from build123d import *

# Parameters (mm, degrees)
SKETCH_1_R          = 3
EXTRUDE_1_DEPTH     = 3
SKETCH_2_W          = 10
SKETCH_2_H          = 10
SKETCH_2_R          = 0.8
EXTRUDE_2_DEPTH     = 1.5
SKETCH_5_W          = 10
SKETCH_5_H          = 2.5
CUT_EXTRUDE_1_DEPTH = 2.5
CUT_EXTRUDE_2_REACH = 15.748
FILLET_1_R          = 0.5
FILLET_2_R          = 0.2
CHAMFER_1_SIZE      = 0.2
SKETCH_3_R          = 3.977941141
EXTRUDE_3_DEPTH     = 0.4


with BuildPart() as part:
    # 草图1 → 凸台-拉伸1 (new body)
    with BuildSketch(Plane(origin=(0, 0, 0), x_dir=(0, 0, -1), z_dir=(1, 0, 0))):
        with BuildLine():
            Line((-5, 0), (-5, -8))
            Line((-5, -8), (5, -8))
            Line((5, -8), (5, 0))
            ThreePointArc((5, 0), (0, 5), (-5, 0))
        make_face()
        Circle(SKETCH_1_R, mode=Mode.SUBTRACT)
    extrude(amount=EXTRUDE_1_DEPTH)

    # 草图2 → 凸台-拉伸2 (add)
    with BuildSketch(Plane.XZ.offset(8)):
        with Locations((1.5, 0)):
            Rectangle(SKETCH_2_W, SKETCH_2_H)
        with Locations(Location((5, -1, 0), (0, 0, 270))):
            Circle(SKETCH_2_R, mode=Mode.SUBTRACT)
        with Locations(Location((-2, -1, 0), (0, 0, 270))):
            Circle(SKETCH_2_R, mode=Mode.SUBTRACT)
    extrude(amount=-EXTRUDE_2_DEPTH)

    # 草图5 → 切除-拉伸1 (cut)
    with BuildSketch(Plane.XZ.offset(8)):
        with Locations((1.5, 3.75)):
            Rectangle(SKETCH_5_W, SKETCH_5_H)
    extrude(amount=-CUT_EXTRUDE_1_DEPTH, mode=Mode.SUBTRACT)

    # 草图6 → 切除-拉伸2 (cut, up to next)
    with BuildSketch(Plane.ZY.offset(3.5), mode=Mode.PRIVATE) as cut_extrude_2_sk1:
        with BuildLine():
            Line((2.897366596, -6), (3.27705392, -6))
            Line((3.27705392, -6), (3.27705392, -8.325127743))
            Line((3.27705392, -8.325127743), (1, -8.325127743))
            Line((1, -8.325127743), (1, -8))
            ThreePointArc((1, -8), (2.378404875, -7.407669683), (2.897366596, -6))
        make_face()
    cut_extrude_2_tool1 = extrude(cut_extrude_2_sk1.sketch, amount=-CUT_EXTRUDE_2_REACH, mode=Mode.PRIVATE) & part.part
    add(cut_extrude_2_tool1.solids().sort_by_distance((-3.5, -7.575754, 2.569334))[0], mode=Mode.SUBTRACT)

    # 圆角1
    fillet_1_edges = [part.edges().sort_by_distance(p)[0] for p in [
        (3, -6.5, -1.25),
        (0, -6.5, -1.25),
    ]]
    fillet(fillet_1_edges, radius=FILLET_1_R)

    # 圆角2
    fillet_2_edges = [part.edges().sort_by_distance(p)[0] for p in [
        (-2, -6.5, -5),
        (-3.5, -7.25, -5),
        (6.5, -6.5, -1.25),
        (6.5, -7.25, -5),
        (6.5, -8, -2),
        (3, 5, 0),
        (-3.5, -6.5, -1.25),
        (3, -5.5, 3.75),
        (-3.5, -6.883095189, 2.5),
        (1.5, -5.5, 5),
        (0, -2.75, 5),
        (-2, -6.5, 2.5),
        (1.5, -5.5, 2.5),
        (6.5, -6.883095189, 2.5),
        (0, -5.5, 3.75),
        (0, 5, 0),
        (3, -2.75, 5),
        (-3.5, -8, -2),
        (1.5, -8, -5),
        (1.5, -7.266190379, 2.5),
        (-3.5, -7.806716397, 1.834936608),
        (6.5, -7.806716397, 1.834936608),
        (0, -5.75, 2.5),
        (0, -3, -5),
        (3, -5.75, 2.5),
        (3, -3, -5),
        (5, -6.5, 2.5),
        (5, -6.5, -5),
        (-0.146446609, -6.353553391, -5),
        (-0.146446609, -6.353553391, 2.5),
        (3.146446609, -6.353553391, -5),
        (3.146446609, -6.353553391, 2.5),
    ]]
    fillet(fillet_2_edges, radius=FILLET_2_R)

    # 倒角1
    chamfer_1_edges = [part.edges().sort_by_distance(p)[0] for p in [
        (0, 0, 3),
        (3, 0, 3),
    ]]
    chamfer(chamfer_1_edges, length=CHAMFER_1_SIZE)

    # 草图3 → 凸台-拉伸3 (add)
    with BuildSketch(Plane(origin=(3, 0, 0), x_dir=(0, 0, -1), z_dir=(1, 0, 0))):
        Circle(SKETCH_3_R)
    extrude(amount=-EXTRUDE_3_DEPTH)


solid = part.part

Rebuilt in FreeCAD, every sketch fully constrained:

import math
import FreeCAD as App
import Part
import Sketcher


def edges_at(feature, points):
    """Names of the edges that pass closest to the given points."""
    edges = feature.Shape.Edges
    near = lambda p: min(range(len(edges)), key=lambda i: edges[i].distToShape(Part.Vertex(*p))[0])
    return sorted({f"Edge{near(p) + 1}" for p in points})


def add_polygon(sketch, points):
    """Adds a closed chain of lines whose ends are joined by coincident constraints."""
    first, n = sketch.GeometryCount, len(points)
    for a, b in zip(points, points[1:] + points[:1]):
        sketch.addGeometry(Part.LineSegment(App.Vector(*a, 0), App.Vector(*b, 0)), False)
    for i in range(n):
        sketch.addConstraint(Sketcher.Constraint("Coincident", first + i, 2, first + (i + 1) % n, 1))

doc = App.newDocument("Part")
body = doc.addObject("PartDesign::Body", "Body")

sketch1 = body.newObject("Sketcher::SketchObject", "Sketch")
sketch1.AttachmentSupport = (doc.getObject("YZ_Plane"), [""])
sketch1.MapMode = "FlatFace"
sketch1.addGeometry(Part.LineSegment(App.Vector(0, 5, 0), App.Vector(-8, 5, 0)), False)
sketch1.addGeometry(Part.LineSegment(App.Vector(-8, 5, 0), App.Vector(-8, -5, 0)), False)
sketch1.addGeometry(Part.LineSegment(App.Vector(-8, -5, 0), App.Vector(0, -5, 0)), False)
sketch1.addGeometry(Part.ArcOfCircle(Part.Circle(App.Vector(0, 0, 0), App.Vector(0, 0, 1), 5), math.radians(-90), math.radians(90)), False)
sketch1.addGeometry(Part.Circle(App.Vector(0, 0, 0), App.Vector(0, 0, 1), 3), False)
sketch1.addConstraint(Sketcher.Constraint("Coincident", 0, 2, 1, 1))
sketch1.addConstraint(Sketcher.Constraint("Coincident", 1, 2, 2, 1))
sketch1.addConstraint(Sketcher.Constraint("Tangent", 2, 2, 3, 1))
sketch1.addConstraint(Sketcher.Constraint("Tangent", 3, 2, 0, 1))
sketch1.addConstraint(Sketcher.Constraint("Horizontal", 0))
sketch1.addConstraint(Sketcher.Constraint("Vertical", 1))
sketch1.addConstraint(Sketcher.Constraint("Horizontal", 2))
sketch1.addConstraint(Sketcher.Constraint("Coincident", 3, 3, -1, 1))
sketch1.addConstraint(Sketcher.Constraint("Coincident", 4, 3, -1, 1))
sketch1.addConstraint(Sketcher.Constraint("Diameter", 4, 6.0))
sketch1.addConstraint(Sketcher.Constraint("Radius", 3, 5.0))
sketch1.addConstraint(Sketcher.Constraint("DistanceX", 0, 2, 0, 1, 8.0))
pad1 = body.newObject("PartDesign::Pad", "Pad")
pad1.Profile = sketch1
pad1.Length = 3

sketch2 = body.newObject("Sketcher::SketchObject", "Sketch001")
sketch2.AttachmentSupport = (doc.getObject("XZ_Plane"), [""])
sketch2.MapMode = "FlatFace"
sketch2.AttachmentOffset = App.Placement(App.Vector(0, 0, 8), App.Rotation())
add_polygon(sketch2, [(-3.5, 5), (-3.5, -5), (6.5, -5), (6.5, 5)])
sketch2.addGeometry(Part.Circle(App.Vector(-2, -1, 0), App.Vector(0, 0, 1), 0.8), False)
sketch2.addGeometry(Part.Circle(App.Vector(5, -1, 0), App.Vector(0, 0, 1), 0.8), False)
sketch2.addConstraint(Sketcher.Constraint("Vertical", 0))
sketch2.addConstraint(Sketcher.Constraint("Horizontal", 1))
sketch2.addConstraint(Sketcher.Constraint("Vertical", 2))
sketch2.addConstraint(Sketcher.Constraint("Horizontal", 3))
sketch2.addConstraint(Sketcher.Constraint("Equal", 4, 5))
sketch2.addConstraint(Sketcher.Constraint("Horizontal", 4, 3, 5, 3))
sketch2.addConstraint(Sketcher.Constraint("Equal", 3, 0))
sketch2.addConstraint(Sketcher.Constraint("Diameter", 4, 1.6))
sketch2.addConstraint(Sketcher.Constraint("DistanceX", 1, 1, 1, 2, 10.0))
sketch2.addConstraint(Sketcher.Constraint("DistanceX", 4, 3, -1, 1, 2.0))
sketch2.addConstraint(Sketcher.Constraint("DistanceY", 4, 3, -1, 1, 1.0))
sketch2.addConstraint(Sketcher.Constraint("DistanceX", -1, 1, 5, 3, 5.0))
sketch2.addConstraint(Sketcher.Constraint("DistanceY", 0, 2, -1, 1, 5.0))
sketch2.addConstraint(Sketcher.Constraint("DistanceX", 0, 2, -1, 1, 3.5))
pad2 = body.newObject("PartDesign::Pad", "Pad001")
pad2.Profile = sketch2
pad2.Length = 1.5
pad2.Reversed = True

sketch3 = body.newObject("Sketcher::SketchObject", "Sketch002")
sketch3.AttachmentSupport = (doc.getObject("XZ_Plane"), [""])
sketch3.MapMode = "FlatFace"
sketch3.AttachmentOffset = App.Placement(App.Vector(0, 0, 8), App.Rotation())
add_polygon(sketch3, [(-3.5, 5), (-3.5, 2.5), (6.5, 2.5), (6.5, 5)])
sketch3.addConstraint(Sketcher.Constraint("Vertical", 0))
sketch3.addConstraint(Sketcher.Constraint("Horizontal", 1))
sketch3.addConstraint(Sketcher.Constraint("Vertical", 2))
sketch3.addConstraint(Sketcher.Constraint("Horizontal", 3))
sketch3.addConstraint(Sketcher.Constraint("DistanceX", 1, 1, 1, 2, 10.0))
sketch3.addConstraint(Sketcher.Constraint("DistanceY", 0, 2, 0, 1, 2.5))
sketch3.addConstraint(Sketcher.Constraint("DistanceY", -1, 1, 2, 2, 5.0))
sketch3.addConstraint(Sketcher.Constraint("DistanceX", 0, 2, -1, 1, 3.5))
pocket1 = body.newObject("PartDesign::Pocket", "Pocket")
pocket1.Profile = sketch3
pocket1.Length = 2.5

sketch4 = body.newObject("Sketcher::SketchObject", "Sketch003")
sketch4.AttachmentSupport = (doc.getObject("YZ_Plane"), [""])
sketch4.MapMode = "FlatFace"
sketch4.AttachmentOffset = App.Placement(App.Vector(0, 0, -3.5), App.Rotation())
sketch4.addGeometry(Part.LineSegment(App.Vector(-6, 3.28, 0), App.Vector(-6, 2.9, 0)), False)
sketch4.addGeometry(Part.ArcOfCircle(Part.Circle(App.Vector(-6.1, 1, 0), App.Vector(0, 0, 1), 1.9), math.radians(87), math.radians(180)), False)
sketch4.addGeometry(Part.LineSegment(App.Vector(-8, 1, 0), App.Vector(-8.33, 1, 0)), False)
sketch4.addGeometry(Part.LineSegment(App.Vector(-8.33, 1, 0), App.Vector(-8.33, 3.28, 0)), False)
sketch4.addGeometry(Part.LineSegment(App.Vector(-8.33, 3.28, 0), App.Vector(-6, 3.28, 0)), False)
sketch4.addConstraint(Sketcher.Constraint("Coincident", 0, 2, 1, 1))
sketch4.addConstraint(Sketcher.Constraint("Coincident", 1, 2, 2, 1))
sketch4.addConstraint(Sketcher.Constraint("Coincident", 2, 2, 3, 1))
sketch4.addConstraint(Sketcher.Constraint("Coincident", 3, 2, 4, 1))
sketch4.addConstraint(Sketcher.Constraint("Coincident", 4, 2, 0, 1))
sketch4.addConstraint(Sketcher.Constraint("Vertical", 0))
sketch4.addConstraint(Sketcher.Constraint("Horizontal", 2))
sketch4.addConstraint(Sketcher.Constraint("Vertical", 3))
sketch4.addConstraint(Sketcher.Constraint("Horizontal", 4))
sketch4.addConstraint(Sketcher.Constraint("Radius", 1, 1.9))
sketch4.addConstraint(Sketcher.Constraint("DistanceY", -1, 1, 1, 3, 1.0))
sketch4.addConstraint(Sketcher.Constraint("DistanceX", 0, 2, -1, 1, 6.0))
sketch4.addConstraint(Sketcher.Constraint("DistanceX", 1, 2, -1, 1, 8.0))
sketch4.addConstraint(Sketcher.Constraint("DistanceY", -1, 1, 1, 2, 1.0))
sketch4.addConstraint(Sketcher.Constraint("DistanceX", 2, 2, 2, 1, 0.325128))
sketch4.addConstraint(Sketcher.Constraint("DistanceY", 0, 2, 0, 1, 0.379687))
pocket2 = body.newObject("PartDesign::Pocket", "Pocket001")
pocket2.Profile = sketch4
pocket2.Length = 10
pocket2.Reversed = True
doc.recompute()

fillet = body.newObject("PartDesign::Fillet", "Fillet")
fillet.Base = (pocket2, edges_at(pocket2, [(3, -6.5, -1.25), (0, -6.5, -1.25)]))
fillet.Radius = 0.5
doc.recompute()

fillet2 = body.newObject("PartDesign::Fillet", "Fillet001")
fillet2.Base = (fillet, edges_at(fillet, [
    (-2, -6.5, -5),
    (-3.5, -7.25, -5),
    (6.5, -6.5, -1.25),
    (6.5, -7.25, -5),
    (6.5, -8, -2),
    (3, 5, 0),
    (-3.5, -6.5, -1.25),
    (3, -5.5, 3.75),
    (-3.5, -6.883, 2.5),
    (1.5, -5.5, 5),
    (0, -2.75, 5),
    (-2, -6.5, 2.5),
    (1.5, -5.5, 2.5),
    (6.5, -6.883, 2.5),
    (0, -5.5, 3.75),
    (0, 5, 0),
    (3, -2.75, 5),
    (-3.5, -8, -2),
    (1.5, -8, -5),
    (1.5, -7.266, 2.5),
    (-3.5, -7.807, 1.835),
    (6.5, -7.807, 1.835),
    (0, -5.75, 2.5),
    (0, -3, -5),
    (3, -5.75, 2.5),
    (3, -3, -5),
    (5, -6.5, 2.5),
    (5, -6.5, -5),
    (-0.146, -6.354, -5),
    (-0.146, -6.354, 2.5),
    (3.146, -6.354, -5),
    (3.146, -6.354, 2.5),
]))
fillet2.Radius = 0.2
doc.recompute()

chamfer = body.newObject("PartDesign::Chamfer", "Chamfer")
chamfer.Base = (fillet2, edges_at(fillet2, [(0, 0, 3), (3, 0, 3)]))
chamfer.Size = 0.2

sketch5 = body.newObject("Sketcher::SketchObject", "Sketch004")
sketch5.AttachmentSupport = (doc.getObject("YZ_Plane"), [""])
sketch5.MapMode = "FlatFace"
sketch5.AttachmentOffset = App.Placement(App.Vector(0, 0, 3), App.Rotation())
sketch5.addGeometry(Part.Circle(App.Vector(0, 0, 0), App.Vector(0, 0, 1), 4), False)
sketch5.addConstraint(Sketcher.Constraint("Coincident", 0, 3, -1, 1))
sketch5.addConstraint(Sketcher.Constraint("Diameter", 0, 7.955882))
pad3 = body.newObject("PartDesign::Pad", "Pad002")
pad3.Profile = sketch5
pad3.Length = 0.4
pad3.Reversed = True

doc.recompute()
